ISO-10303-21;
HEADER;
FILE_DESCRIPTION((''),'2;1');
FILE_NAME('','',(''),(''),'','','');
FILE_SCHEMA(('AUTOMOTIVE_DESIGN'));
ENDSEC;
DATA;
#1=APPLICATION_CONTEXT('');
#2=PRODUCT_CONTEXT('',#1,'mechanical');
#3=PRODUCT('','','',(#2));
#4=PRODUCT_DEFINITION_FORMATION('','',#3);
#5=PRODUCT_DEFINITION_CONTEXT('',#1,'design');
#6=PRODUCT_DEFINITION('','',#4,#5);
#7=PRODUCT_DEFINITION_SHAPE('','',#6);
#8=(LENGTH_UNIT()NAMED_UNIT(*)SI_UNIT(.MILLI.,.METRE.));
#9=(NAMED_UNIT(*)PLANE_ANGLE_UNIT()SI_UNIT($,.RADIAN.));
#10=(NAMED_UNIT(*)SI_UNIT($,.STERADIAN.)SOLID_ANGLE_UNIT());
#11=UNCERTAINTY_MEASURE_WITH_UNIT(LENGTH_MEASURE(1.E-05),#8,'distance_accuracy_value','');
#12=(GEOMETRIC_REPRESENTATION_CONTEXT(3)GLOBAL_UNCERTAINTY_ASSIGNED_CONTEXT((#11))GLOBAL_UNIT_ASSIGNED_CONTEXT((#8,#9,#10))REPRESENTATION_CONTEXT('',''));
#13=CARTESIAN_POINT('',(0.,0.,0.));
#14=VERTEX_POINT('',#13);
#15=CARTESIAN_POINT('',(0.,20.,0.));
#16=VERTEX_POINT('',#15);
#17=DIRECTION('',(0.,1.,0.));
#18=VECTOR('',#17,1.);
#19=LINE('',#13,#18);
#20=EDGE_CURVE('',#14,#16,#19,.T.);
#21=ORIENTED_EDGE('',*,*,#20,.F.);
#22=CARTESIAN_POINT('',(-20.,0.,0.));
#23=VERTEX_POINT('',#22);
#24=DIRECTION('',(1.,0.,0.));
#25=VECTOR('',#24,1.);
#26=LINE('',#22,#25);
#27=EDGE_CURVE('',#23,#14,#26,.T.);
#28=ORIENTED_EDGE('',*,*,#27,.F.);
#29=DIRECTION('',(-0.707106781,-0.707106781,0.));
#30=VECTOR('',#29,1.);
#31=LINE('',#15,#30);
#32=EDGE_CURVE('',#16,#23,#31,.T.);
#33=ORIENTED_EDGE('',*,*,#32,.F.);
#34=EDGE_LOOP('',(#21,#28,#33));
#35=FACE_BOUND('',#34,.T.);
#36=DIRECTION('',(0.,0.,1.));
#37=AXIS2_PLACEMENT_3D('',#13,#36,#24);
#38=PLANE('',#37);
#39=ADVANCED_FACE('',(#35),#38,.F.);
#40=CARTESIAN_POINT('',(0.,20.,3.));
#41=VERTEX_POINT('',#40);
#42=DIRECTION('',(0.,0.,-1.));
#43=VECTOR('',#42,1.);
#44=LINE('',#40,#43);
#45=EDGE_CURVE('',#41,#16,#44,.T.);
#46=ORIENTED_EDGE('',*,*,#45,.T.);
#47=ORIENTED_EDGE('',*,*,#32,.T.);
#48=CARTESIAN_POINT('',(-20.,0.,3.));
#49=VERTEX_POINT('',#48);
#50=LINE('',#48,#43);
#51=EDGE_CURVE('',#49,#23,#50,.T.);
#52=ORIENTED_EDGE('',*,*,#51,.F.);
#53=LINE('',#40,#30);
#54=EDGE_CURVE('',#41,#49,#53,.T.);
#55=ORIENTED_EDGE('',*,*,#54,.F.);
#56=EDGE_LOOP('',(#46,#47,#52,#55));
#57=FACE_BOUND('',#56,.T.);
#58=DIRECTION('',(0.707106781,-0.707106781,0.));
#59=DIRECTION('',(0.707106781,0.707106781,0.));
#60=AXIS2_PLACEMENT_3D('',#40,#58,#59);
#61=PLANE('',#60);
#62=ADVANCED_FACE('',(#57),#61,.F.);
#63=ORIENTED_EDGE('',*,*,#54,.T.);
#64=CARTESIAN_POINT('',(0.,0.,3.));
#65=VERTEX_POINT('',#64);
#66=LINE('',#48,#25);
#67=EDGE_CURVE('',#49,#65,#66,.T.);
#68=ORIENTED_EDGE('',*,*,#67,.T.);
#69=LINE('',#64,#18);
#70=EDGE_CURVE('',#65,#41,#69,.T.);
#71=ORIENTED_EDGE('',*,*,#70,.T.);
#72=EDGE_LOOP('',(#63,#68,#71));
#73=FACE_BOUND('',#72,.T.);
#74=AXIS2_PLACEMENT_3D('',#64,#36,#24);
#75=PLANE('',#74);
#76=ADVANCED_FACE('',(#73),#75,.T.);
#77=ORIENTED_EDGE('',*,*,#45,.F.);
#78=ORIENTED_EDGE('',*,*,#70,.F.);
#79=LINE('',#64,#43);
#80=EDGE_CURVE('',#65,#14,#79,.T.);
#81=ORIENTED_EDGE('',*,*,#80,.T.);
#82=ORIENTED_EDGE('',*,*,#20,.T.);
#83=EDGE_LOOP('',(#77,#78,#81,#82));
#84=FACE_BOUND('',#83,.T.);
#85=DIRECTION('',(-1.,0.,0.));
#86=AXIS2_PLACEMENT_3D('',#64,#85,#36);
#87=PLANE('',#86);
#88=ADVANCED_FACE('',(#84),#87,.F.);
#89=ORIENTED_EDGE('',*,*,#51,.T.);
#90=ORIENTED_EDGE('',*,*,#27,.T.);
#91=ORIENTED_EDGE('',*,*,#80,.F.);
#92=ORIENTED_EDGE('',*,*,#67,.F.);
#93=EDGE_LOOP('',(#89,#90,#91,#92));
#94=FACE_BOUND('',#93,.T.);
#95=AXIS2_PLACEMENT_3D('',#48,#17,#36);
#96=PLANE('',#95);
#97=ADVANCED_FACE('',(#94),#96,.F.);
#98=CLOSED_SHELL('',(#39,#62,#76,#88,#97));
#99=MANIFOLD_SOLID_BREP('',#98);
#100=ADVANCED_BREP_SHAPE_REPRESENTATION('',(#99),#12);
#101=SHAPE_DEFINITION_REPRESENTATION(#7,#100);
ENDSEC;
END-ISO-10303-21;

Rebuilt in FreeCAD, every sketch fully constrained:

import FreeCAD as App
import Part
import Sketcher


def add_polygon(sketch, points):
    """Adds a closed chain of lines whose ends are joined by coincident constraints."""
    first, n = sketch.GeometryCount, len(points)
    for a, b in zip(points, points[1:] + points[:1]):
        sketch.addGeometry(Part.LineSegment(App.Vector(*a, 0), App.Vector(*b, 0)), False)
    for i in range(n):
        sketch.addConstraint(Sketcher.Constraint("Coincident", first + i, 2, first + (i + 1) % n, 1))

doc = App.newDocument("Part")
body = doc.addObject("PartDesign::Body", "Body")

# Sketch on XY plane
sketch1 = body.newObject("Sketcher::SketchObject", "Sketch")
sketch1.AttachmentSupport = (doc.getObject("XY_Plane"), [""])
sketch1.MapMode = "FlatFace"
add_polygon(sketch1, [(0, 0), (0, 20), (-20, 0)])  # lines 0-2
sketch1.addConstraint([
    Sketcher.Constraint("Vertical", 0),
    Sketcher.Constraint("Horizontal", 2),
    Sketcher.Constraint("Coincident", 2, 2, -1, 1),
    Sketcher.Constraint("Equal", 2, 0),
    Sketcher.Constraint("DistanceX", 2, 1, 2, 2, 20.0),
])
pad1 = body.newObject("PartDesign::Pad", "Pad")
pad1.Profile = sketch1
pad1.Length = 3

doc.recompute()
